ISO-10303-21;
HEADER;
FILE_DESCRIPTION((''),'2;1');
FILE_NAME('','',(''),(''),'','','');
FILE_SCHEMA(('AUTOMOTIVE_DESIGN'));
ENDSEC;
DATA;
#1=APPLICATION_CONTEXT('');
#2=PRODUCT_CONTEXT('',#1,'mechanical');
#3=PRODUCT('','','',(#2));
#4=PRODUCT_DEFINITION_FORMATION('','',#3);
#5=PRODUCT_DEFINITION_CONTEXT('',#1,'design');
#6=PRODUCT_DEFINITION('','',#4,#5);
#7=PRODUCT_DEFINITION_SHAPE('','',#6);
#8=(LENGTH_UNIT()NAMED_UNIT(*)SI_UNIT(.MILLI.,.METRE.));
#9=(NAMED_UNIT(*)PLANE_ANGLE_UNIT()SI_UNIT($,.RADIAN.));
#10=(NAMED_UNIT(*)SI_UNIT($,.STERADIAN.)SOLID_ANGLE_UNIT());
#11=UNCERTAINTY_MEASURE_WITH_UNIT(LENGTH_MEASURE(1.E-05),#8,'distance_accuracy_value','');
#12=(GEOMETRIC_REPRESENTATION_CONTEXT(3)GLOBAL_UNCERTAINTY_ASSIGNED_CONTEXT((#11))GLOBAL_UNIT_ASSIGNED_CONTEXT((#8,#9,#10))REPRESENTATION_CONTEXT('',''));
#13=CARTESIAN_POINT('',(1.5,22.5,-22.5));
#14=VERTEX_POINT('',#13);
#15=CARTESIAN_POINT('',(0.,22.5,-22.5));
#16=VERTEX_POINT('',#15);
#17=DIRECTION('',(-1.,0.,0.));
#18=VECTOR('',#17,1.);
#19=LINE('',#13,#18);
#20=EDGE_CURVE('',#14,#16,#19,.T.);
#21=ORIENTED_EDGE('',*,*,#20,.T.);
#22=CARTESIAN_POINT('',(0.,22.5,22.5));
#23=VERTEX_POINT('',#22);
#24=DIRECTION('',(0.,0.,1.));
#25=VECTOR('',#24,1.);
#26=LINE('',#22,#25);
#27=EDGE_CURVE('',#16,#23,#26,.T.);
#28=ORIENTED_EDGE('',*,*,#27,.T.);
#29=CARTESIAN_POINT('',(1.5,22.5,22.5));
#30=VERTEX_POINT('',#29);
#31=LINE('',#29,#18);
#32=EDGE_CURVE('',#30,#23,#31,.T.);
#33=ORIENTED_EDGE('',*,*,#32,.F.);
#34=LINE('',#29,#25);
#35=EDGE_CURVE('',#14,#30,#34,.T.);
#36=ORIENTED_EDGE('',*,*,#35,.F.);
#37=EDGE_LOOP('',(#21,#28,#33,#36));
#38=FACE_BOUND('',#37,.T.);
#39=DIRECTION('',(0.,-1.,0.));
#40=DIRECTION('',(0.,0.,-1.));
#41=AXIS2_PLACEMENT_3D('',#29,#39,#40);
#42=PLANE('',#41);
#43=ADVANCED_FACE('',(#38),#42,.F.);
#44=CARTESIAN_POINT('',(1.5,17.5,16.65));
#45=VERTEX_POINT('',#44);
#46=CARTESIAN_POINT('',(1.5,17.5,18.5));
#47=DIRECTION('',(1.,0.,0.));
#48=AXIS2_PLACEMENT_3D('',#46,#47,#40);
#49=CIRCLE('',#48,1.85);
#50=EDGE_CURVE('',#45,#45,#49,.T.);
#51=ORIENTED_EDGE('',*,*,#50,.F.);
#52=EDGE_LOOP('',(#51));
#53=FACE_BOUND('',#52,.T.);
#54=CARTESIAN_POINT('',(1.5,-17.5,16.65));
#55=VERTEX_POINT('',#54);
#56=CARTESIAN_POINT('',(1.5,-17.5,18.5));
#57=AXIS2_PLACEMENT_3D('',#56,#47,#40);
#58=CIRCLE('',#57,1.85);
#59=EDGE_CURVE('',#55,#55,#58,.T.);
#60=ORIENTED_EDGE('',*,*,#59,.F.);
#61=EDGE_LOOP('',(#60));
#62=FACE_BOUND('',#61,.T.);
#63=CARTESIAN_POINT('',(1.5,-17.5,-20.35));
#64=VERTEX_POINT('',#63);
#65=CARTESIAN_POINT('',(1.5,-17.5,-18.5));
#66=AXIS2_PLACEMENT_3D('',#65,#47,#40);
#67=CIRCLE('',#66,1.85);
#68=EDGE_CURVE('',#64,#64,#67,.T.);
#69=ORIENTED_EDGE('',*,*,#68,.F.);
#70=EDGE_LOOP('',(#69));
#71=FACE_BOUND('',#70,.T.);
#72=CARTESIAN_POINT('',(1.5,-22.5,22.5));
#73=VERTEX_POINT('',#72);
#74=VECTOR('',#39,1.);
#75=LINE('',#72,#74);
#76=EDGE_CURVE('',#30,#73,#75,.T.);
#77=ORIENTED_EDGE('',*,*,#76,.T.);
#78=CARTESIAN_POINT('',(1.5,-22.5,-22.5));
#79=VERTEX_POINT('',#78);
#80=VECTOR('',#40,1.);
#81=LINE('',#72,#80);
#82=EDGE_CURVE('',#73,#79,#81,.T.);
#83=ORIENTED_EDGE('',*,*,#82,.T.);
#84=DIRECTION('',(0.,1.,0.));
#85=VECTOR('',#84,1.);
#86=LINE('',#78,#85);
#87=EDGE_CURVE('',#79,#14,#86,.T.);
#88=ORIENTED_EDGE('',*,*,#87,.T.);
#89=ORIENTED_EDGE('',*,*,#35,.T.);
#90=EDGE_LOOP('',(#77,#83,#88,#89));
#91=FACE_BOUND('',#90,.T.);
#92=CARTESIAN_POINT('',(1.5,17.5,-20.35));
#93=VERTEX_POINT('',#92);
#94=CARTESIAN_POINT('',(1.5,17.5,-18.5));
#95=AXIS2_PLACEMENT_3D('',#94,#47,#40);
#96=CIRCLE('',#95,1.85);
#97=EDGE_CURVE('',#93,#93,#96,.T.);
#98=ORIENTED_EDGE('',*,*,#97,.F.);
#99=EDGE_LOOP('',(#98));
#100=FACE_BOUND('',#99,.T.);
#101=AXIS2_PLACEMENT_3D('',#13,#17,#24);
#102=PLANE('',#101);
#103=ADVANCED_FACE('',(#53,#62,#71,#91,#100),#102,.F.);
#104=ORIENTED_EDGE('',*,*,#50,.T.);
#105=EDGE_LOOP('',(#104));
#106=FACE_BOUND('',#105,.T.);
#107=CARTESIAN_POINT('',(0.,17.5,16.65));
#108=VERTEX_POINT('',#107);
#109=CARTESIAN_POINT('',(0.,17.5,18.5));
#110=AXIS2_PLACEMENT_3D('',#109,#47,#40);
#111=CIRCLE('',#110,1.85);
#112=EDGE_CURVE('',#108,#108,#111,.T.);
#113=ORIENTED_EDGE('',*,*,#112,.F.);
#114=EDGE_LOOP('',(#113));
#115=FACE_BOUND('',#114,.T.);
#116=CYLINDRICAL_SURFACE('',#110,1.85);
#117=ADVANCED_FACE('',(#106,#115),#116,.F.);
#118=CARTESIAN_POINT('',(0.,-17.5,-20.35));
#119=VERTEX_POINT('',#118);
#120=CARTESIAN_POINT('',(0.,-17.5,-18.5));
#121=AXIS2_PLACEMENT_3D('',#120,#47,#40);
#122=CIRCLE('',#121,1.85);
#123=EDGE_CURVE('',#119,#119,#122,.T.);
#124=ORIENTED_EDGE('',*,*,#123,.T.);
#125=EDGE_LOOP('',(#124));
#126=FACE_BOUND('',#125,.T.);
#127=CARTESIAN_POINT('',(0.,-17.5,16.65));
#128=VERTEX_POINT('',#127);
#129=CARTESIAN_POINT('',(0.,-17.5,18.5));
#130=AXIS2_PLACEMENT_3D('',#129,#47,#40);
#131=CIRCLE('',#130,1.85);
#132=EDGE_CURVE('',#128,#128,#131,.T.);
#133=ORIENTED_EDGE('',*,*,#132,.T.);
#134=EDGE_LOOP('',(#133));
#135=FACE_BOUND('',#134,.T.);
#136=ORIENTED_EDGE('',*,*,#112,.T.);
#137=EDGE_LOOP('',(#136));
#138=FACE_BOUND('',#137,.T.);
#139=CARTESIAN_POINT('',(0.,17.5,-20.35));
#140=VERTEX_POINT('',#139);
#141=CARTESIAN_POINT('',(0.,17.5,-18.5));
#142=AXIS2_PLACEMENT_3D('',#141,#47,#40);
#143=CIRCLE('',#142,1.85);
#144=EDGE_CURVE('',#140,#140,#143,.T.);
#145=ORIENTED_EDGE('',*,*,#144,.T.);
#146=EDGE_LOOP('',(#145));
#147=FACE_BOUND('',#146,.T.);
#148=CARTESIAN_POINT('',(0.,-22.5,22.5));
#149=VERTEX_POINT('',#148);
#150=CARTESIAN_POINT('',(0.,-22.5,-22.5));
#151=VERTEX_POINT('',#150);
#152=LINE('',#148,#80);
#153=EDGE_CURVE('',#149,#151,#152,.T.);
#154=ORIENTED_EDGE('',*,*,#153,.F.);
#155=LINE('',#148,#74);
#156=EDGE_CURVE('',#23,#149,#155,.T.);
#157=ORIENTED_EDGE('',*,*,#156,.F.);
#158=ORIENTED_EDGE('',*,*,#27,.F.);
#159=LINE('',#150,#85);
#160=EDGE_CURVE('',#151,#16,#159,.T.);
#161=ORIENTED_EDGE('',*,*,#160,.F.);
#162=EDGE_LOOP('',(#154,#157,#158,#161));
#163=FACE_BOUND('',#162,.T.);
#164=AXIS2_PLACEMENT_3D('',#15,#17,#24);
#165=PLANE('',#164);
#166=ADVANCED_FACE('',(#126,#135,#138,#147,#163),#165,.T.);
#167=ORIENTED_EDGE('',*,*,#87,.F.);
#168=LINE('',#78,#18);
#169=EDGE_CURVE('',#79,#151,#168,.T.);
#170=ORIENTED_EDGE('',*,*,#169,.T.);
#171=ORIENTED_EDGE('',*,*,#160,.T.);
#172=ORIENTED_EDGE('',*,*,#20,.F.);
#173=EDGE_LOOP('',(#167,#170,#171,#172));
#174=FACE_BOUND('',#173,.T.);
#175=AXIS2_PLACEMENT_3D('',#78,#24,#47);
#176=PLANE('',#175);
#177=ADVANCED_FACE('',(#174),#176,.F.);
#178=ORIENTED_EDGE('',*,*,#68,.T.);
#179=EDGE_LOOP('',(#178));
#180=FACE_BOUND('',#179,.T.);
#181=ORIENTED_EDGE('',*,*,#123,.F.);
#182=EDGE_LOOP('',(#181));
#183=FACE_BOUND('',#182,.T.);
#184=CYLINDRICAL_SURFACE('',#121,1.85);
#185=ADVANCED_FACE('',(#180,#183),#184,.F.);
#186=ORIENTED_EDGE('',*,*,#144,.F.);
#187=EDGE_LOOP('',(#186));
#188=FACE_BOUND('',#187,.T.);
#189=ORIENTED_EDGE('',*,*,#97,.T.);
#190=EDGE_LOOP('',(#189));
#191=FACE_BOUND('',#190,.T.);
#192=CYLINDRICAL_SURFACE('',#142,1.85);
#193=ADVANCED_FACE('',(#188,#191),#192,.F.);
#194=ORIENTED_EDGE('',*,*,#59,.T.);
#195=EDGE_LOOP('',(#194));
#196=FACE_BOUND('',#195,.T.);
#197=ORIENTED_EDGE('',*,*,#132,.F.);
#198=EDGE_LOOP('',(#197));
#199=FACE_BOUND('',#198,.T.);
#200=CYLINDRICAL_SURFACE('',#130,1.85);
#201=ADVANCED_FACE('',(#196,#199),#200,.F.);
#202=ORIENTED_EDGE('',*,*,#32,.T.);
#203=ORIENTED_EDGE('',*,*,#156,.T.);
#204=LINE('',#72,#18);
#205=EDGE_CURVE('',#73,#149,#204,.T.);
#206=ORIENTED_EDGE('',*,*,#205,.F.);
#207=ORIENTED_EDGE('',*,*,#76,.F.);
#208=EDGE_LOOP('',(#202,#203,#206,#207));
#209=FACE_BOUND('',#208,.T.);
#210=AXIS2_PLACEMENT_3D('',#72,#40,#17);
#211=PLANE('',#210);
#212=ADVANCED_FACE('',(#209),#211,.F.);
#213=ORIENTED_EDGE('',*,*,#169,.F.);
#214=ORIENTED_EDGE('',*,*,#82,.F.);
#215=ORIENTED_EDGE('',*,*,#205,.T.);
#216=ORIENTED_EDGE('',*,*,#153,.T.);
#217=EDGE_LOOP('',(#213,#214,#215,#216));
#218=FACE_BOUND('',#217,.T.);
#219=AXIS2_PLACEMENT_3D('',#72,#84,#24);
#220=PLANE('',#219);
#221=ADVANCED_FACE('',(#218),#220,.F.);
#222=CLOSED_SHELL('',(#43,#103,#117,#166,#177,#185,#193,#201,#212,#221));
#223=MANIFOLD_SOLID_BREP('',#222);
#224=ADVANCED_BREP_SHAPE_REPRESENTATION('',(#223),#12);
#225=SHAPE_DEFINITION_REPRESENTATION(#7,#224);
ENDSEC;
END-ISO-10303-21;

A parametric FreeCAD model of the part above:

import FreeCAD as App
import Part
import Sketcher
Q = App.Units.Quantity

doc = App.newDocument("Part")
body = doc.addObject("PartDesign::Body", "Body")

sketch1 = doc.addObject("Sketcher::SketchObject", "Sketch")
body.addObject(sketch1)
sketch1.AttachmentSupport = (doc.YZ_Plane, [""])
sketch1.MapMode = "FlatFace"
sketch1.addGeometry([
    Part.LineSegment(App.Vector(22, 22, 0), App.Vector(-22, 22, 0)),
    Part.LineSegment(App.Vector(-22, 22, 0), App.Vector(-22, -22, 0)),
    Part.LineSegment(App.Vector(-22, -22, 0), App.Vector(22, -22, 0)),
    Part.LineSegment(App.Vector(22, -22, 0), App.Vector(22, 22, 0)),
], False)
sketch1.addConstraint([
    Sketcher.Constraint("Coincident", 0, 2, 1, 1),
    Sketcher.Constraint("Coincident", 1, 2, 2, 1),
    Sketcher.Constraint("Coincident", 2, 2, 3, 1),
    Sketcher.Constraint("Coincident", 3, 2, 0, 1),
    Sketcher.Constraint("Horizontal", 0),
    Sketcher.Constraint("Vertical", 1),
    Sketcher.Constraint("Horizontal", 2),
    Sketcher.Constraint("Vertical", 3),
    Sketcher.Constraint("Symmetric", 0, 2, 2, 2, -1, 1),
    Sketcher.Constraint("Equal", 2, 1),
    Sketcher.Constraint("DistanceX", 0, 2, 0, 1, Q("45 mm")),
])
pad1 = doc.addObject("PartDesign::Pad", "Pad")
body.addObject(pad1)
pad1.Profile = sketch1
pad1.Length = 1.5

sketch2 = doc.addObject("Sketcher::SketchObject", "Sketch001")
body.addObject(sketch2)
sketch2.AttachmentSupport = (doc.YZ_Plane, [""])
sketch2.MapMode = "FlatFace"
sketch2.AttachmentOffset = App.Placement(App.Vector(0, 0, 1.5), App.Rotation())
sketch2.addGeometry([
    Part.Circle(App.Vector(17.5, 18.5, 0), App.Vector(0, 0, 1), 1.9),
    Part.Circle(App.Vector(-17.5, 18.5, 0), App.Vector(0, 0, 1), 1.9),
    Part.Circle(App.Vector(17.5, -18.5, 0), App.Vector(0, 0, 1), 1.9),
    Part.Circle(App.Vector(-17.5, -18.5, 0), App.Vector(0, 0, 1), 1.9),
], False)
sketch2.addConstraint([
    Sketcher.Constraint("Equal", 0, 1),
    Sketcher.Constraint("Equal", 1, 2),
    Sketcher.Constraint("Equal", 2, 3),
    Sketcher.Constraint("Symmetric", 1, 3, 2, 3, -1, 1),
    Sketcher.Constraint("Symmetric", 0, 3, 3, 3, -1, 1),
    Sketcher.Constraint("Symmetric", 0, 3, 1, 3, -2),
    Sketcher.Constraint("Diameter", 0, Q("3.7 mm")),
    Sketcher.Constraint("DistanceX", 1, 3, 0, 3, Q("35 mm")),
    Sketcher.Constraint("DistanceY", 2, 3, 0, 3, Q("37 mm")),
])
pocket1 = doc.addObject("PartDesign::Pocket", "Pocket")
body.addObject(pocket1)
pocket1.Profile = sketch2
pocket1.Type = "ThroughAll"

doc.recompute()
